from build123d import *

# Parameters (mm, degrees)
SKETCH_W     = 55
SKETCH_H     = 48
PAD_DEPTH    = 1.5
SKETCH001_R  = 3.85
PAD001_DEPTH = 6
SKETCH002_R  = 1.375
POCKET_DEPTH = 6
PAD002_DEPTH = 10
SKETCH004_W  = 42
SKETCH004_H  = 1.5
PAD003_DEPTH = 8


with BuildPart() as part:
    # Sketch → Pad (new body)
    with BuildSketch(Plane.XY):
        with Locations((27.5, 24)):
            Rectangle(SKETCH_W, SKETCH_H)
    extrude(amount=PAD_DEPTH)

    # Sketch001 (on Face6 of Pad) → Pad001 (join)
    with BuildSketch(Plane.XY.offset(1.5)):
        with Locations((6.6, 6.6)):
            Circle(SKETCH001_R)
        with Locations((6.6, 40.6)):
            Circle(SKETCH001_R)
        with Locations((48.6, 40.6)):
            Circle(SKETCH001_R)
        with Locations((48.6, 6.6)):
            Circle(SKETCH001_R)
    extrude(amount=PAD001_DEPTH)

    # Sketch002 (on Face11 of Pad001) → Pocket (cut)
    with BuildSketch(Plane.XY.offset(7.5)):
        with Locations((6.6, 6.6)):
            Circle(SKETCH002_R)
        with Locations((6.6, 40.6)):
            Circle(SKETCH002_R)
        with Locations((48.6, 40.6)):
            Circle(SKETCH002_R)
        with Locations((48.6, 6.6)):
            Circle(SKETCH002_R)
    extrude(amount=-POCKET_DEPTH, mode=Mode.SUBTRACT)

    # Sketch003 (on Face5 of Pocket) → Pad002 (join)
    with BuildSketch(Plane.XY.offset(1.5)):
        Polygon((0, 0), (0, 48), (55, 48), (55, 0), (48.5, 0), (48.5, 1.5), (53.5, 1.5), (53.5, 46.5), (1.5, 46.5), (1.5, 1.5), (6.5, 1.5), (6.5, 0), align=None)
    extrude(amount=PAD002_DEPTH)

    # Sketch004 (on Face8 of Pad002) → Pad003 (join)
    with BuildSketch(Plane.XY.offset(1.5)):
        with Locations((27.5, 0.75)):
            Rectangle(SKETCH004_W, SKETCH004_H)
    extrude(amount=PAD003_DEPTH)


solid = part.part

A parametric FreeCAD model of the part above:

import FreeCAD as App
import Part
import Sketcher

V = App.Vector


def add_polygon(sketch, points):
    """Adds a closed chain of lines whose ends are joined by coincident constraints."""
    first, n = sketch.GeometryCount, len(points)
    for a, b in zip(points, points[1:] + points[:1]):
        sketch.addGeometry(Part.LineSegment(App.Vector(*a, 0), App.Vector(*b, 0)), False)
    for i in range(n):
        sketch.addConstraint(Sketcher.Constraint("Coincident", first + i, 2, first + (i + 1) % n, 1))

doc = App.newDocument("Part")
body = doc.addObject("PartDesign::Body", "Body")

sketch1 = body.newObject("Sketcher::SketchObject", "Sketch")
sketch1.AttachmentSupport = (doc.getObject("XY_Plane"), [""])
sketch1.MapMode = "FlatFace"
add_polygon(sketch1, [(0, 48), (0, 0), (55, 0), (55, 48)])
sketch1.addConstraint([
    Sketcher.Constraint("Vertical", 0),
    Sketcher.Constraint("Horizontal", 1),
    Sketcher.Constraint("Vertical", 2),
    Sketcher.Constraint("Horizontal", 3),
    Sketcher.Constraint("Coincident", 0, 2, -1, 1),
    Sketcher.Constraint("DistanceX", 1, 1, 1, 2, 55.0),
    Sketcher.Constraint("DistanceY", 0, 2, 0, 1, 48.0),
])
pad1 = body.newObject("PartDesign::Pad", "Pad")
pad1.Profile = sketch1
pad1.Length = 1.5

sketch2 = body.newObject("Sketcher::SketchObject", "Sketch001")
sketch2.AttachmentSupport = (doc.getObject("XY_Plane"), [""])
sketch2.MapMode = "FlatFace"
sketch2.AttachmentOffset = App.Placement(V(0, 0, 1.5), App.Rotation())
sketch2.addGeometry([
    Part.Circle(V(6.6, 6.6, 0), V(0, 0, 1), 3.9),
    Part.Circle(V(6.6, 40.6, 0), V(0, 0, 1), 3.9),
    Part.Circle(V(48.6, 40.6, 0), V(0, 0, 1), 3.9),
    Part.Circle(V(48.6, 6.6, 0), V(0, 0, 1), 3.9),
], False)
sketch2.addConstraint([
    Sketcher.Constraint("Equal", 0, 1),
    Sketcher.Constraint("Equal", 1, 2),
    Sketcher.Constraint("Equal", 2, 3),
    Sketcher.Constraint("Horizontal", 1, 3, 2, 3),
    Sketcher.Constraint("Horizontal", 0, 3, 3, 3),
    Sketcher.Constraint("Vertical", 0, 3, 1, 3),
    Sketcher.Constraint("Vertical", 2, 3, 3, 3),
    Sketcher.Constraint("Diameter", 0, 7.7),
    Sketcher.Constraint("DistanceY", 0, 3, 1, 3, 34.0),
    Sketcher.Constraint("DistanceX", 1, 3, 2, 3, 42.0),
    Sketcher.Constraint("DistanceX", -1, 1, 0, 3, 6.6),
    Sketcher.Constraint("DistanceY", -1, 1, 0, 3, 6.6),
])
pad2 = body.newObject("PartDesign::Pad", "Pad001")
pad2.Profile = sketch2
pad2.Length = 6

sketch3 = body.newObject("Sketcher::SketchObject", "Sketch002")
sketch3.AttachmentSupport = (doc.getObject("XY_Plane"), [""])
sketch3.MapMode = "FlatFace"
sketch3.AttachmentOffset = App.Placement(V(0, 0, 7.5), App.Rotation())
sketch3.addGeometry([
    Part.Circle(V(6.6, 6.6, 0), V(0, 0, 1), 1.4),
    Part.Circle(V(6.6, 40.6, 0), V(0, 0, 1), 1.4),
    Part.Circle(V(48.6, 40.6, 0), V(0, 0, 1), 1.4),
    Part.Circle(V(48.6, 6.6, 0), V(0, 0, 1), 1.4),
], False)
sketch3.addConstraint([
    Sketcher.Constraint("Equal", 0, 1),
    Sketcher.Constraint("Equal", 1, 2),
    Sketcher.Constraint("Equal", 2, 3),
    Sketcher.Constraint("Horizontal", 1, 3, 2, 3),
    Sketcher.Constraint("Horizontal", 0, 3, 3, 3),
    Sketcher.Constraint("Vertical", 0, 3, 1, 3),
    Sketcher.Constraint("Vertical", 2, 3, 3, 3),
    Sketcher.Constraint("Diameter", 0, 2.75),
    Sketcher.Constraint("DistanceY", 0, 3, 1, 3, 34.0),
    Sketcher.Constraint("DistanceX", 1, 3, 2, 3, 42.0),
    Sketcher.Constraint("DistanceX", -1, 1, 0, 3, 6.6),
    Sketcher.Constraint("DistanceY", -1, 1, 0, 3, 6.6),
])
pocket1 = body.newObject("PartDesign::Pocket", "Pocket")
pocket1.Profile = sketch3
pocket1.Length = 6

sketch4 = body.newObject("Sketcher::SketchObject", "Sketch003")
sketch4.AttachmentSupport = (doc.getObject("XY_Plane"), [""])
sketch4.MapMode = "FlatFace"
sketch4.AttachmentOffset = App.Placement(V(0, 0, 1.5), App.Rotation())
add_polygon(sketch4, [(0, 48), (0, 0), (6.5, 0), (6.5, 1.5), (1.5, 1.5), (1.5, 46.5), (53.5, 46.5), (53.5, 1.5), (48.5, 1.5), (48.5, 0), (55, 0), (55, 48)])
sketch4.addConstraint([
    Sketcher.Constraint("Vertical", 0),
    Sketcher.Constraint("Horizontal", 1),
    Sketcher.Constraint("Vertical", 2),
    Sketcher.Constraint("Horizontal", 3),
    Sketcher.Constraint("Vertical", 4),
    Sketcher.Constraint("Horizontal", 5),
    Sketcher.Constraint("Vertical", 6),
    Sketcher.Constraint("Horizontal", 7),
    Sketcher.Constraint("Vertical", 8),
    Sketcher.Constraint("Horizontal", 9),
    Sketcher.Constraint("Vertical", 10),
    Sketcher.Constraint("Horizontal", 11),
    Sketcher.Constraint("Coincident", 0, 2, -1, 1),
    Sketcher.Constraint("PointOnObject", 8, 2, -1),
    Sketcher.Constraint("Horizontal", 3, 2, 6, 2),
    Sketcher.Constraint("Equal", 3, 7),
    Sketcher.Constraint("Equal", 1, 9),
    Sketcher.Constraint("DistanceX", 3, 2, 3, 1, 5.0),
    Sketcher.Constraint("DistanceX", 5, 1, 5, 2, 52.0),
    Sketcher.Constraint("DistanceX", 11, 2, 11, 1, 55.0),
    Sketcher.Constraint("DistanceY", 0, 2, 0, 1, 48.0),
    Sketcher.Constraint("DistanceY", 4, 1, 4, 2, 45.0),
    Sketcher.Constraint("DistanceY", 2, 1, 2, 2, 1.5),
])
pad3 = body.newObject("PartDesign::Pad", "Pad002")
pad3.Profile = sketch4
pad3.Length = 10

sketch5 = body.newObject("Sketcher::SketchObject", "Sketch004")
sketch5.AttachmentSupport = (doc.getObject("XY_Plane"), [""])
sketch5.MapMode = "FlatFace"
sketch5.AttachmentOffset = App.Placement(V(0, 0, 1.5), App.Rotation())
add_polygon(sketch5, [(6.5, 1.5), (6.5, 0), (48.5, 0), (48.5, 1.5)])
sketch5.addConstraint([
    Sketcher.Constraint("Vertical", 0),
    Sketcher.Constraint("Horizontal", 1),
    Sketcher.Constraint("Vertical", 2),
    Sketcher.Constraint("Horizontal", 3),
    Sketcher.Constraint("PointOnObject", 0, 2, -1),
    Sketcher.Constraint("DistanceX", 1, 1, 1, 2, 42.0),
    Sketcher.Constraint("DistanceY", 0, 2, 0, 1, 1.5),
    Sketcher.Constraint("DistanceX", -1, 1, 0, 2, 6.5),
])
pad4 = body.newObject("PartDesign::Pad", "Pad003")
pad4.Profile = sketch5
pad4.Length = 8

doc.recompute()
